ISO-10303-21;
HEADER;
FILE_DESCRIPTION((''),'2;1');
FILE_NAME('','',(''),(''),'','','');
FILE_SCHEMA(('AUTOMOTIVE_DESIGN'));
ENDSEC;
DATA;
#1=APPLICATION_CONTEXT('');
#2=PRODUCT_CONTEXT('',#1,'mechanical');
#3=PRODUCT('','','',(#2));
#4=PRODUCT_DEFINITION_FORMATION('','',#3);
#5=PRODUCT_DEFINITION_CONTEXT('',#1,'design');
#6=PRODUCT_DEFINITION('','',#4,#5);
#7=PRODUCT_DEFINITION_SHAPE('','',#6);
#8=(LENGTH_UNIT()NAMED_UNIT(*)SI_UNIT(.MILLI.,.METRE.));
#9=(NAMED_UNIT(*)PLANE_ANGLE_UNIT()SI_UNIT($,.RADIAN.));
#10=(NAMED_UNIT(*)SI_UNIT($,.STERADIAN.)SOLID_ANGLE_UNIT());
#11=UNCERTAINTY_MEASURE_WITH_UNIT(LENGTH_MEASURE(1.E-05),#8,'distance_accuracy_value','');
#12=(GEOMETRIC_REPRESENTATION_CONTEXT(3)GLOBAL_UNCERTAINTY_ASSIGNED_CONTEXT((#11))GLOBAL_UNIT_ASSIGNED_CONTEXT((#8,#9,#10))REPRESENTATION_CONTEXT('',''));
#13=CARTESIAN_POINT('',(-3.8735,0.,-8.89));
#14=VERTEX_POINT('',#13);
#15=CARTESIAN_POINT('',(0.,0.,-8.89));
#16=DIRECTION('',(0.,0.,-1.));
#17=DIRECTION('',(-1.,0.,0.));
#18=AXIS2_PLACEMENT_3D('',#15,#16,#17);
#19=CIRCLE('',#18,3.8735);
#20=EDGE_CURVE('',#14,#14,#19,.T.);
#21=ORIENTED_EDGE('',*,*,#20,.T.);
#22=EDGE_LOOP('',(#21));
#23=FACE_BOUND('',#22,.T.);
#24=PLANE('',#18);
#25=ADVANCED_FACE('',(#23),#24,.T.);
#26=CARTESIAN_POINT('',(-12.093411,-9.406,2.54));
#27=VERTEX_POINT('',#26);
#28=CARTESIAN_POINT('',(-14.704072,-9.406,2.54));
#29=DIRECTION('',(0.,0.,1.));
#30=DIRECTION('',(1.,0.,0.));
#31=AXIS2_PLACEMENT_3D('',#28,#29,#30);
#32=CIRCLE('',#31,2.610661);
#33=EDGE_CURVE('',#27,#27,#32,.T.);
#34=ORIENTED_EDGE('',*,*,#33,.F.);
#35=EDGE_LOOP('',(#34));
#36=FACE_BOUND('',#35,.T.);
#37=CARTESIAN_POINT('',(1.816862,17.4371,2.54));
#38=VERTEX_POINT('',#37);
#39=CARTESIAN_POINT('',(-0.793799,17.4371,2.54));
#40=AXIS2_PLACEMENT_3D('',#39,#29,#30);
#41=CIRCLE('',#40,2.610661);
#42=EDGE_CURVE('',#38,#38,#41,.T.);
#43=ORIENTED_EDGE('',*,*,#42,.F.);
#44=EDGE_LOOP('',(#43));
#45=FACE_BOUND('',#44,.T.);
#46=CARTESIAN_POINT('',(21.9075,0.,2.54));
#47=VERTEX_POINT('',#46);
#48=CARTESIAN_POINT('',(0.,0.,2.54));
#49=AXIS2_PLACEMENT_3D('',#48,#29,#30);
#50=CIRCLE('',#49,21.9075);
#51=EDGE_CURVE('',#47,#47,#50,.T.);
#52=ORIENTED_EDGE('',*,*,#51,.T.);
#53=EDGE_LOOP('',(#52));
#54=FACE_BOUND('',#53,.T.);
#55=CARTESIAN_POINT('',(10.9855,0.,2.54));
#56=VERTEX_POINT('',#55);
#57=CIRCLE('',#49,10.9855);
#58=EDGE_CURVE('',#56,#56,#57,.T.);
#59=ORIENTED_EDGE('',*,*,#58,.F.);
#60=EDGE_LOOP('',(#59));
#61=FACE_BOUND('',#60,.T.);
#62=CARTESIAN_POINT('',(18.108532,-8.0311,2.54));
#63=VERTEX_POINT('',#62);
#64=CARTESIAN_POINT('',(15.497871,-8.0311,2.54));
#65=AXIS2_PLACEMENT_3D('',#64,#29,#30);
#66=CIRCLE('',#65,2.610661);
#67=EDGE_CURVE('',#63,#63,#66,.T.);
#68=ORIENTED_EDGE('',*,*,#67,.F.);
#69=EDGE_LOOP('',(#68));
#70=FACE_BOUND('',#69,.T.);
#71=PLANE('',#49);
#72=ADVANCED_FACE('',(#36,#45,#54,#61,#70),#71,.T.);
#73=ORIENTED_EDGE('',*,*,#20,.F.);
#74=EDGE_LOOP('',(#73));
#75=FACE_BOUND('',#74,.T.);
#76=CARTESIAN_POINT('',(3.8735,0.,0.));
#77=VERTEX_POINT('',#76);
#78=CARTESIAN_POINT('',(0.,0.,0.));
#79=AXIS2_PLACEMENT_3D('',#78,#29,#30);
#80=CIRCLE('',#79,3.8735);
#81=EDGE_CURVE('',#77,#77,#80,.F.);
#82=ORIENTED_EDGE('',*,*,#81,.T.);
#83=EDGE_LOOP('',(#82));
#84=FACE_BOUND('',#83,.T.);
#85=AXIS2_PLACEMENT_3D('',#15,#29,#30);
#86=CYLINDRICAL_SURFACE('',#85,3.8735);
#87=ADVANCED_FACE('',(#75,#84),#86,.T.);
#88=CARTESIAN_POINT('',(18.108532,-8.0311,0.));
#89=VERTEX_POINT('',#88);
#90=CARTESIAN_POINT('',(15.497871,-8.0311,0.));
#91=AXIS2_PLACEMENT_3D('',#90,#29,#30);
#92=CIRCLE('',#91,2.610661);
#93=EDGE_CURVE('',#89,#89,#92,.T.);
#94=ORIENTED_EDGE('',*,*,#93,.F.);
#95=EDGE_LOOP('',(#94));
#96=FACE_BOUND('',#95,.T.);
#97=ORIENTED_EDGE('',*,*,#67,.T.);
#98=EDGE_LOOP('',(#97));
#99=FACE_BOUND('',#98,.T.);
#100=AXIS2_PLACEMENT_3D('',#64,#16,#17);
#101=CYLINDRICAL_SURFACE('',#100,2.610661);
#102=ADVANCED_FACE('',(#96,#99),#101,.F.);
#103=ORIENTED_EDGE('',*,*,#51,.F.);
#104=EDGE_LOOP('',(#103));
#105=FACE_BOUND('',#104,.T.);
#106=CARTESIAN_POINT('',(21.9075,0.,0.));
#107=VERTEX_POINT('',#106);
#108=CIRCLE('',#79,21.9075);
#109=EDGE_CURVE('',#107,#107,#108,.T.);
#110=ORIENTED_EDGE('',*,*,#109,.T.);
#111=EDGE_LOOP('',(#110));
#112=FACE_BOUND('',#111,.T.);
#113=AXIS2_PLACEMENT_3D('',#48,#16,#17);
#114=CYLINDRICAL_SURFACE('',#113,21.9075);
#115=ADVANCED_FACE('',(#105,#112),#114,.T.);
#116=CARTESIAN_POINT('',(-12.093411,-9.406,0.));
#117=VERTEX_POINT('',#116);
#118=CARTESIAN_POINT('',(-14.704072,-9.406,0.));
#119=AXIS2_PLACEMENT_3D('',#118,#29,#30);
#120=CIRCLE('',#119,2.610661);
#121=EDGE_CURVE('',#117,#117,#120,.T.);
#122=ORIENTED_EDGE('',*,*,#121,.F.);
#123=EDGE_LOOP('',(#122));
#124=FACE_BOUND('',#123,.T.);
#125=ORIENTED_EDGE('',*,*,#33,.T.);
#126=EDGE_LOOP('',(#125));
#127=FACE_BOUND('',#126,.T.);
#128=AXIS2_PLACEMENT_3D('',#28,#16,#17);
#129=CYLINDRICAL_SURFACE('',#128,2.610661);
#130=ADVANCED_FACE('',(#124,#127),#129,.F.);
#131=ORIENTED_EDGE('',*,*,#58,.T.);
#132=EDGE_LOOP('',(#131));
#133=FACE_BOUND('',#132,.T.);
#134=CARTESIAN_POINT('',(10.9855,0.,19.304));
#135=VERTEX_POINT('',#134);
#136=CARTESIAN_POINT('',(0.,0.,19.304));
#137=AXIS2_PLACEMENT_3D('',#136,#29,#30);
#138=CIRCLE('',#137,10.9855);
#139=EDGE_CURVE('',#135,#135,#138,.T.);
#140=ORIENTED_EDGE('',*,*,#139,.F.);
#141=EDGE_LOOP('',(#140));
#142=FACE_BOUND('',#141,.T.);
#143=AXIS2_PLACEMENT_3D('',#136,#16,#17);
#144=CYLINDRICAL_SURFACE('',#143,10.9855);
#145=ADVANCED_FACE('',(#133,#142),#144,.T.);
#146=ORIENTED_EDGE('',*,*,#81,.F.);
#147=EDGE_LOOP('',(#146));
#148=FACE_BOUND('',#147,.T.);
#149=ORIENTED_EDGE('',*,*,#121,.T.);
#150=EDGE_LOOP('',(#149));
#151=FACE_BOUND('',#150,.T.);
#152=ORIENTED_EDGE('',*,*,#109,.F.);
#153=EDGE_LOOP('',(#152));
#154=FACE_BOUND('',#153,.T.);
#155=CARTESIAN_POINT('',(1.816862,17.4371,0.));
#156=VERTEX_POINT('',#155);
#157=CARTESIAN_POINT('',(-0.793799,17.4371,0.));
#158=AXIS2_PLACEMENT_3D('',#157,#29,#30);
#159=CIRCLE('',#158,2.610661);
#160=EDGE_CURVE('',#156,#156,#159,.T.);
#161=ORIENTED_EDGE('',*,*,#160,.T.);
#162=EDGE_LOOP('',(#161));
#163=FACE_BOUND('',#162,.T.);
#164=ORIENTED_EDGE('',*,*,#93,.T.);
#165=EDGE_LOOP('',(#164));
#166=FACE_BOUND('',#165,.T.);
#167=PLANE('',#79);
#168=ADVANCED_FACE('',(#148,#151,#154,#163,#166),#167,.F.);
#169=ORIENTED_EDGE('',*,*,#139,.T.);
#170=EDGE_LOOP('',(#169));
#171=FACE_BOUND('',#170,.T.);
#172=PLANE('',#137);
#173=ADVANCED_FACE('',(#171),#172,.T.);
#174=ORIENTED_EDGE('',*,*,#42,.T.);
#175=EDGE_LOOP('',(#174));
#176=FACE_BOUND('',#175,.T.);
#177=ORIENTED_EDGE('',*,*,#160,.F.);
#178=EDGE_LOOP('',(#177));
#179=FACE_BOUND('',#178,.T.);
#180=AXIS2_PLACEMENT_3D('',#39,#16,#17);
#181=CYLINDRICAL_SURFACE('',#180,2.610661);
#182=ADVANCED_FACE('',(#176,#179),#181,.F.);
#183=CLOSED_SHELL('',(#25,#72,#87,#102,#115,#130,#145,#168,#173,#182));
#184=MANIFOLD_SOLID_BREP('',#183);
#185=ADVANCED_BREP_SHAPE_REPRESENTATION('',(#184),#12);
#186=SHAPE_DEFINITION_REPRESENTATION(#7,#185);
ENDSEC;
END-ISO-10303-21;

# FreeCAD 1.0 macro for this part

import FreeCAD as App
import Part
import Sketcher
Q = App.Units.Quantity

doc = App.newDocument("Part")
body = doc.addObject("PartDesign::Body", "Body")

# Sketch on XY plane
sketch1 = doc.addObject("Sketcher::SketchObject", "Sketch")
body.addObject(sketch1)
sketch1.AttachmentSupport = (doc.XY_Plane, [""])
sketch1.MapMode = "FlatFace"
sketch1.addGeometry([
    Part.Circle(App.Vector(0, 0, 0), App.Vector(0, 0, 1), 21.9),
    Part.Circle(App.Vector(-14.7, -9.4, 0), App.Vector(0, 0, 1), 2.6),
    Part.Circle(App.Vector(15.5, -8, 0), App.Vector(0, 0, 1), 2.6),
    Part.Circle(App.Vector(-0.8, 17.4, 0), App.Vector(0, 0, 1), 2.6),
], False)
sketch1.addConstraint([
    Sketcher.Constraint("Coincident", 0, 3, -1, 1),
    Sketcher.Constraint("Equal", 1, 2),
    Sketcher.Constraint("Equal", 2, 3),
    Sketcher.Constraint("Diameter", 0, Q("1.725 in")),
    Sketcher.Constraint("Diameter", 1, 5.221322),
    Sketcher.Constraint("DistanceY", -1, 1, 3, 3, Q("0.6865 in")),
    Sketcher.Constraint("DistanceY", 1, 3, -1, 1, 9.406),
    Sketcher.Constraint("DistanceY", 2, 3, -1, 1, 8.0311),
    Sketcher.Constraint("DistanceX", 3, 3, -1, 1, 0.793799),
    Sketcher.Constraint("DistanceX", -1, 1, 2, 3, 15.497871),
    Sketcher.Constraint("DistanceX", 1, 3, -1, 1, 14.704072),
])
pad1 = doc.addObject("PartDesign::Pad", "Pad")
body.addObject(pad1)
pad1.Profile = sketch1
pad1.Length = Q("0.1 in")

# Sketch on XY plane
sketch2 = doc.addObject("Sketcher::SketchObject", "Sketch001")
body.addObject(sketch2)
sketch2.AttachmentSupport = (doc.XY_Plane, [""])
sketch2.MapMode = "FlatFace"
sketch2.addGeometry(Part.Circle(App.Vector(0, 0, 0), App.Vector(0, 0, 1), 3.9), False)
sketch2.addConstraint([
    Sketcher.Constraint("Coincident", 0, 3, -1, 1),
    Sketcher.Constraint("Diameter", 0, Q("0.305 in")),
])
pad2 = doc.addObject("PartDesign::Pad", "Pad001")
body.addObject(pad2)
pad2.Profile = sketch2
pad2.Length = Q("0.35 in")
pad2.Reversed = True

# Sketch on XY plane
sketch3 = doc.addObject("Sketcher::SketchObject", "Sketch002")
body.addObject(sketch3)
sketch3.AttachmentSupport = (doc.XY_Plane, [""])
sketch3.MapMode = "FlatFace"
sketch3.AttachmentOffset = App.Placement(App.Vector(0, 0, 0.1 * 25.4), App.Rotation())
sketch3.addGeometry(Part.Circle(App.Vector(0, 0, 0), App.Vector(0, 0, 1), 11), False)
sketch3.addConstraint([
    Sketcher.Constraint("Coincident", 0, 3, -1, 1),
    Sketcher.Constraint("Diameter", 0, Q("0.865 in")),
])
pad3 = doc.addObject("PartDesign::Pad", "Pad002")
body.addObject(pad3)
pad3.Profile = sketch3
pad3.Length = Q("0.66 in")

doc.recompute()
